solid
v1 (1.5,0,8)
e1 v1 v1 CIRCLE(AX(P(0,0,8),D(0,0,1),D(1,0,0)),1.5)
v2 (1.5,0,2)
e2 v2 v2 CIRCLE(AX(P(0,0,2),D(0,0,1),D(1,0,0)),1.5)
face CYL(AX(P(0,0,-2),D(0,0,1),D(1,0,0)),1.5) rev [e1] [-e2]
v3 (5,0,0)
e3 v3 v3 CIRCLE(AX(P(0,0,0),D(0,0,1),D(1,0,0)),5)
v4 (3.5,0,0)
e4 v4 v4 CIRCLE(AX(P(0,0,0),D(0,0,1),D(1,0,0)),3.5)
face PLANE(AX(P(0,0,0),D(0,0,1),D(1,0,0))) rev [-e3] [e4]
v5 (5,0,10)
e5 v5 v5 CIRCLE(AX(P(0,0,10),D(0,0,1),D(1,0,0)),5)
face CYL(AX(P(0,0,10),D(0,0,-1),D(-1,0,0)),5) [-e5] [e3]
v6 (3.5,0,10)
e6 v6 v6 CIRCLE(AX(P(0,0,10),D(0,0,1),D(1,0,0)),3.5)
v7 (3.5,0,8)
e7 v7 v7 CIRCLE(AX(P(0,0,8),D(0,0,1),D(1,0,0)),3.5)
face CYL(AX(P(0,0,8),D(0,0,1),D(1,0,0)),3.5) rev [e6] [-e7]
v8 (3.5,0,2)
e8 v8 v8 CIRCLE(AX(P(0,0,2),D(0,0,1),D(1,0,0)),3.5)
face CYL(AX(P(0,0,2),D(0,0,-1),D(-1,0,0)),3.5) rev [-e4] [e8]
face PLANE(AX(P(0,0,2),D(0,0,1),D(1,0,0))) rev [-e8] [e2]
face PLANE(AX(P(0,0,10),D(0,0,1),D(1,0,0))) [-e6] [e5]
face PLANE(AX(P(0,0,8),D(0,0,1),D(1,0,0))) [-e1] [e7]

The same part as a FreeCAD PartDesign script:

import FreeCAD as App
import Part
import Sketcher

doc = App.newDocument("Part")
body = doc.addObject("PartDesign::Body", "Body")

sketch1 = body.newObject("Sketcher::SketchObject", "Sketch")
sketch1.AttachmentSupport = (doc.getObject("XY_Plane"), [""])
sketch1.MapMode = "FlatFace"
sketch1.addGeometry(Part.Circle(App.Vector(0, 0, 0), App.Vector(0, 0, 1), 5), False)
sketch1.addConstraint([
    Sketcher.Constraint("Coincident", 0, 3, -1, 1),
    Sketcher.Constraint("Diameter", 0, 10.0),
])
pad1 = body.newObject("PartDesign::Pad", "Pad")
pad1.Profile = sketch1
pad1.Length = 10

sketch2 = body.newObject("Sketcher::SketchObject", "Sketch001")
sketch2.AttachmentSupport = (doc.getObject("XY_Plane"), [""])
sketch2.MapMode = "FlatFace"
sketch2.addGeometry(Part.Circle(App.Vector(0, 0, 0), App.Vector(0, 0, 1), 3.5), False)
sketch2.addConstraint([
    Sketcher.Constraint("Coincident", 0, 3, -1, 1),
    Sketcher.Constraint("Diameter", 0, 7.0),
])
pocket1 = body.newObject("PartDesign::Pocket", "Pocket")
pocket1.Profile = sketch2
pocket1.Length = 2
pocket1.Reversed = True

sketch3 = body.newObject("Sketcher::SketchObject", "Sketch002")
sketch3.AttachmentSupport = (doc.getObject("XY_Plane"), [""])
sketch3.MapMode = "FlatFace"
sketch3.AttachmentOffset = App.Placement(App.Vector(0, 0, 10), App.Rotation())
sketch3.addGeometry(Part.Circle(App.Vector(0, 0, 0), App.Vector(0, 0, 1), 3.5), False)
sketch3.addConstraint([
    Sketcher.Constraint("Coincident", 0, 3, -1, 1),
    Sketcher.Constraint("Diameter", 0, 7.0),
])
pocket2 = body.newObject("PartDesign::Pocket", "Pocket001")
pocket2.Profile = sketch3
pocket2.Length = 2

sketch4 = body.newObject("Sketcher::SketchObject", "Sketch003")
sketch4.AttachmentSupport = (doc.getObject("XY_Plane"), [""])
sketch4.MapMode = "FlatFace"
sketch4.AttachmentOffset = App.Placement(App.Vector(0, 0, 10), App.Rotation())
sketch4.addGeometry(Part.Circle(App.Vector(0, 0, 0), App.Vector(0, 0, 1), 1.5), False)
sketch4.addConstraint([
    Sketcher.Constraint("Coincident", 0, 3, -1, 1),
    Sketcher.Constraint("Diameter", 0, 3.0),
])
pocket3 = body.newObject("PartDesign::Pocket", "Pocket002")
pocket3.Profile = sketch4
pocket3.Length = 12

doc.recompute()
